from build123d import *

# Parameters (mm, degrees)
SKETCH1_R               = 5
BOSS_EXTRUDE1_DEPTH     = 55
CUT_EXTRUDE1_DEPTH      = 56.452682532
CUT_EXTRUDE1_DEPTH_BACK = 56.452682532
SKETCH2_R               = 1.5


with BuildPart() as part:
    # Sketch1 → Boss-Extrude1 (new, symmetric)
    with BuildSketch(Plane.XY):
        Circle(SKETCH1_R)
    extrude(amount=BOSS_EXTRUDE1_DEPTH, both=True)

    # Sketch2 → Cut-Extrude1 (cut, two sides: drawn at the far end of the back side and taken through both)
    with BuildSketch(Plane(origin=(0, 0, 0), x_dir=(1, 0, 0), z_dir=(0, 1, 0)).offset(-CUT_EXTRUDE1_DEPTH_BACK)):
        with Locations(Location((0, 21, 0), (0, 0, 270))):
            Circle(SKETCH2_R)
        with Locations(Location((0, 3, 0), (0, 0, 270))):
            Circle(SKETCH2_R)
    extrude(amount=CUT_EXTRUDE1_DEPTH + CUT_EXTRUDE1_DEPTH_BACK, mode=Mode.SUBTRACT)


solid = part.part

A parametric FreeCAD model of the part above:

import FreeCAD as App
import Part
import Sketcher
from FreeCAD import Vector

doc = App.newDocument("Part")
body = doc.addObject("PartDesign::Body", "Body")

sketch1 = doc.addObject("Sketcher::SketchObject", "Sketch")
body.addObject(sketch1)
sketch1.AttachmentSupport = (doc.XY_Plane, [""])
sketch1.MapMode = "FlatFace"
sketch1.addGeometry(Part.Circle(Vector(0, 0, 0), Vector(0, 0, 1), 5), False)
sketch1.addConstraint([
    Sketcher.Constraint("Coincident", 0, 3, -1, 1),
    Sketcher.Constraint("Diameter", 0, 10.0),
])
pad1 = doc.addObject("PartDesign::Pad", "Pad")
body.addObject(pad1)
pad1.Profile = sketch1
pad1.Length = 110
pad1.Midplane = True

sketch2 = doc.addObject("Sketcher::SketchObject", "Sketch001")
body.addObject(sketch2)
sketch2.AttachmentSupport = (doc.XZ_Plane, [""])
sketch2.MapMode = "FlatFace"
sketch2.addGeometry([
    Part.Circle(Vector(0, -21, 0), Vector(0, 0, 1), 1.5),
    Part.Circle(Vector(0, -3, 0), Vector(0, 0, 1), 1.5),
], False)
sketch2.addConstraint([
    Sketcher.Constraint("Equal", 0, 1),
    Sketcher.Constraint("PointOnObject", 0, 3, -2),
    Sketcher.Constraint("PointOnObject", 1, 3, -2),
    Sketcher.Constraint("Diameter", 0, 3.0),
    Sketcher.Constraint("DistanceY", 0, 3, -1, 1, 21.0),
    Sketcher.Constraint("DistanceY", 1, 3, -1, 1, 3.0),
])
pocket1 = doc.addObject("PartDesign::Pocket", "Pocket")
body.addObject(pocket1)
pocket1.Profile = sketch2
pocket1.Type = "ThroughAll"
pocket1.Midplane = True

doc.recompute()
